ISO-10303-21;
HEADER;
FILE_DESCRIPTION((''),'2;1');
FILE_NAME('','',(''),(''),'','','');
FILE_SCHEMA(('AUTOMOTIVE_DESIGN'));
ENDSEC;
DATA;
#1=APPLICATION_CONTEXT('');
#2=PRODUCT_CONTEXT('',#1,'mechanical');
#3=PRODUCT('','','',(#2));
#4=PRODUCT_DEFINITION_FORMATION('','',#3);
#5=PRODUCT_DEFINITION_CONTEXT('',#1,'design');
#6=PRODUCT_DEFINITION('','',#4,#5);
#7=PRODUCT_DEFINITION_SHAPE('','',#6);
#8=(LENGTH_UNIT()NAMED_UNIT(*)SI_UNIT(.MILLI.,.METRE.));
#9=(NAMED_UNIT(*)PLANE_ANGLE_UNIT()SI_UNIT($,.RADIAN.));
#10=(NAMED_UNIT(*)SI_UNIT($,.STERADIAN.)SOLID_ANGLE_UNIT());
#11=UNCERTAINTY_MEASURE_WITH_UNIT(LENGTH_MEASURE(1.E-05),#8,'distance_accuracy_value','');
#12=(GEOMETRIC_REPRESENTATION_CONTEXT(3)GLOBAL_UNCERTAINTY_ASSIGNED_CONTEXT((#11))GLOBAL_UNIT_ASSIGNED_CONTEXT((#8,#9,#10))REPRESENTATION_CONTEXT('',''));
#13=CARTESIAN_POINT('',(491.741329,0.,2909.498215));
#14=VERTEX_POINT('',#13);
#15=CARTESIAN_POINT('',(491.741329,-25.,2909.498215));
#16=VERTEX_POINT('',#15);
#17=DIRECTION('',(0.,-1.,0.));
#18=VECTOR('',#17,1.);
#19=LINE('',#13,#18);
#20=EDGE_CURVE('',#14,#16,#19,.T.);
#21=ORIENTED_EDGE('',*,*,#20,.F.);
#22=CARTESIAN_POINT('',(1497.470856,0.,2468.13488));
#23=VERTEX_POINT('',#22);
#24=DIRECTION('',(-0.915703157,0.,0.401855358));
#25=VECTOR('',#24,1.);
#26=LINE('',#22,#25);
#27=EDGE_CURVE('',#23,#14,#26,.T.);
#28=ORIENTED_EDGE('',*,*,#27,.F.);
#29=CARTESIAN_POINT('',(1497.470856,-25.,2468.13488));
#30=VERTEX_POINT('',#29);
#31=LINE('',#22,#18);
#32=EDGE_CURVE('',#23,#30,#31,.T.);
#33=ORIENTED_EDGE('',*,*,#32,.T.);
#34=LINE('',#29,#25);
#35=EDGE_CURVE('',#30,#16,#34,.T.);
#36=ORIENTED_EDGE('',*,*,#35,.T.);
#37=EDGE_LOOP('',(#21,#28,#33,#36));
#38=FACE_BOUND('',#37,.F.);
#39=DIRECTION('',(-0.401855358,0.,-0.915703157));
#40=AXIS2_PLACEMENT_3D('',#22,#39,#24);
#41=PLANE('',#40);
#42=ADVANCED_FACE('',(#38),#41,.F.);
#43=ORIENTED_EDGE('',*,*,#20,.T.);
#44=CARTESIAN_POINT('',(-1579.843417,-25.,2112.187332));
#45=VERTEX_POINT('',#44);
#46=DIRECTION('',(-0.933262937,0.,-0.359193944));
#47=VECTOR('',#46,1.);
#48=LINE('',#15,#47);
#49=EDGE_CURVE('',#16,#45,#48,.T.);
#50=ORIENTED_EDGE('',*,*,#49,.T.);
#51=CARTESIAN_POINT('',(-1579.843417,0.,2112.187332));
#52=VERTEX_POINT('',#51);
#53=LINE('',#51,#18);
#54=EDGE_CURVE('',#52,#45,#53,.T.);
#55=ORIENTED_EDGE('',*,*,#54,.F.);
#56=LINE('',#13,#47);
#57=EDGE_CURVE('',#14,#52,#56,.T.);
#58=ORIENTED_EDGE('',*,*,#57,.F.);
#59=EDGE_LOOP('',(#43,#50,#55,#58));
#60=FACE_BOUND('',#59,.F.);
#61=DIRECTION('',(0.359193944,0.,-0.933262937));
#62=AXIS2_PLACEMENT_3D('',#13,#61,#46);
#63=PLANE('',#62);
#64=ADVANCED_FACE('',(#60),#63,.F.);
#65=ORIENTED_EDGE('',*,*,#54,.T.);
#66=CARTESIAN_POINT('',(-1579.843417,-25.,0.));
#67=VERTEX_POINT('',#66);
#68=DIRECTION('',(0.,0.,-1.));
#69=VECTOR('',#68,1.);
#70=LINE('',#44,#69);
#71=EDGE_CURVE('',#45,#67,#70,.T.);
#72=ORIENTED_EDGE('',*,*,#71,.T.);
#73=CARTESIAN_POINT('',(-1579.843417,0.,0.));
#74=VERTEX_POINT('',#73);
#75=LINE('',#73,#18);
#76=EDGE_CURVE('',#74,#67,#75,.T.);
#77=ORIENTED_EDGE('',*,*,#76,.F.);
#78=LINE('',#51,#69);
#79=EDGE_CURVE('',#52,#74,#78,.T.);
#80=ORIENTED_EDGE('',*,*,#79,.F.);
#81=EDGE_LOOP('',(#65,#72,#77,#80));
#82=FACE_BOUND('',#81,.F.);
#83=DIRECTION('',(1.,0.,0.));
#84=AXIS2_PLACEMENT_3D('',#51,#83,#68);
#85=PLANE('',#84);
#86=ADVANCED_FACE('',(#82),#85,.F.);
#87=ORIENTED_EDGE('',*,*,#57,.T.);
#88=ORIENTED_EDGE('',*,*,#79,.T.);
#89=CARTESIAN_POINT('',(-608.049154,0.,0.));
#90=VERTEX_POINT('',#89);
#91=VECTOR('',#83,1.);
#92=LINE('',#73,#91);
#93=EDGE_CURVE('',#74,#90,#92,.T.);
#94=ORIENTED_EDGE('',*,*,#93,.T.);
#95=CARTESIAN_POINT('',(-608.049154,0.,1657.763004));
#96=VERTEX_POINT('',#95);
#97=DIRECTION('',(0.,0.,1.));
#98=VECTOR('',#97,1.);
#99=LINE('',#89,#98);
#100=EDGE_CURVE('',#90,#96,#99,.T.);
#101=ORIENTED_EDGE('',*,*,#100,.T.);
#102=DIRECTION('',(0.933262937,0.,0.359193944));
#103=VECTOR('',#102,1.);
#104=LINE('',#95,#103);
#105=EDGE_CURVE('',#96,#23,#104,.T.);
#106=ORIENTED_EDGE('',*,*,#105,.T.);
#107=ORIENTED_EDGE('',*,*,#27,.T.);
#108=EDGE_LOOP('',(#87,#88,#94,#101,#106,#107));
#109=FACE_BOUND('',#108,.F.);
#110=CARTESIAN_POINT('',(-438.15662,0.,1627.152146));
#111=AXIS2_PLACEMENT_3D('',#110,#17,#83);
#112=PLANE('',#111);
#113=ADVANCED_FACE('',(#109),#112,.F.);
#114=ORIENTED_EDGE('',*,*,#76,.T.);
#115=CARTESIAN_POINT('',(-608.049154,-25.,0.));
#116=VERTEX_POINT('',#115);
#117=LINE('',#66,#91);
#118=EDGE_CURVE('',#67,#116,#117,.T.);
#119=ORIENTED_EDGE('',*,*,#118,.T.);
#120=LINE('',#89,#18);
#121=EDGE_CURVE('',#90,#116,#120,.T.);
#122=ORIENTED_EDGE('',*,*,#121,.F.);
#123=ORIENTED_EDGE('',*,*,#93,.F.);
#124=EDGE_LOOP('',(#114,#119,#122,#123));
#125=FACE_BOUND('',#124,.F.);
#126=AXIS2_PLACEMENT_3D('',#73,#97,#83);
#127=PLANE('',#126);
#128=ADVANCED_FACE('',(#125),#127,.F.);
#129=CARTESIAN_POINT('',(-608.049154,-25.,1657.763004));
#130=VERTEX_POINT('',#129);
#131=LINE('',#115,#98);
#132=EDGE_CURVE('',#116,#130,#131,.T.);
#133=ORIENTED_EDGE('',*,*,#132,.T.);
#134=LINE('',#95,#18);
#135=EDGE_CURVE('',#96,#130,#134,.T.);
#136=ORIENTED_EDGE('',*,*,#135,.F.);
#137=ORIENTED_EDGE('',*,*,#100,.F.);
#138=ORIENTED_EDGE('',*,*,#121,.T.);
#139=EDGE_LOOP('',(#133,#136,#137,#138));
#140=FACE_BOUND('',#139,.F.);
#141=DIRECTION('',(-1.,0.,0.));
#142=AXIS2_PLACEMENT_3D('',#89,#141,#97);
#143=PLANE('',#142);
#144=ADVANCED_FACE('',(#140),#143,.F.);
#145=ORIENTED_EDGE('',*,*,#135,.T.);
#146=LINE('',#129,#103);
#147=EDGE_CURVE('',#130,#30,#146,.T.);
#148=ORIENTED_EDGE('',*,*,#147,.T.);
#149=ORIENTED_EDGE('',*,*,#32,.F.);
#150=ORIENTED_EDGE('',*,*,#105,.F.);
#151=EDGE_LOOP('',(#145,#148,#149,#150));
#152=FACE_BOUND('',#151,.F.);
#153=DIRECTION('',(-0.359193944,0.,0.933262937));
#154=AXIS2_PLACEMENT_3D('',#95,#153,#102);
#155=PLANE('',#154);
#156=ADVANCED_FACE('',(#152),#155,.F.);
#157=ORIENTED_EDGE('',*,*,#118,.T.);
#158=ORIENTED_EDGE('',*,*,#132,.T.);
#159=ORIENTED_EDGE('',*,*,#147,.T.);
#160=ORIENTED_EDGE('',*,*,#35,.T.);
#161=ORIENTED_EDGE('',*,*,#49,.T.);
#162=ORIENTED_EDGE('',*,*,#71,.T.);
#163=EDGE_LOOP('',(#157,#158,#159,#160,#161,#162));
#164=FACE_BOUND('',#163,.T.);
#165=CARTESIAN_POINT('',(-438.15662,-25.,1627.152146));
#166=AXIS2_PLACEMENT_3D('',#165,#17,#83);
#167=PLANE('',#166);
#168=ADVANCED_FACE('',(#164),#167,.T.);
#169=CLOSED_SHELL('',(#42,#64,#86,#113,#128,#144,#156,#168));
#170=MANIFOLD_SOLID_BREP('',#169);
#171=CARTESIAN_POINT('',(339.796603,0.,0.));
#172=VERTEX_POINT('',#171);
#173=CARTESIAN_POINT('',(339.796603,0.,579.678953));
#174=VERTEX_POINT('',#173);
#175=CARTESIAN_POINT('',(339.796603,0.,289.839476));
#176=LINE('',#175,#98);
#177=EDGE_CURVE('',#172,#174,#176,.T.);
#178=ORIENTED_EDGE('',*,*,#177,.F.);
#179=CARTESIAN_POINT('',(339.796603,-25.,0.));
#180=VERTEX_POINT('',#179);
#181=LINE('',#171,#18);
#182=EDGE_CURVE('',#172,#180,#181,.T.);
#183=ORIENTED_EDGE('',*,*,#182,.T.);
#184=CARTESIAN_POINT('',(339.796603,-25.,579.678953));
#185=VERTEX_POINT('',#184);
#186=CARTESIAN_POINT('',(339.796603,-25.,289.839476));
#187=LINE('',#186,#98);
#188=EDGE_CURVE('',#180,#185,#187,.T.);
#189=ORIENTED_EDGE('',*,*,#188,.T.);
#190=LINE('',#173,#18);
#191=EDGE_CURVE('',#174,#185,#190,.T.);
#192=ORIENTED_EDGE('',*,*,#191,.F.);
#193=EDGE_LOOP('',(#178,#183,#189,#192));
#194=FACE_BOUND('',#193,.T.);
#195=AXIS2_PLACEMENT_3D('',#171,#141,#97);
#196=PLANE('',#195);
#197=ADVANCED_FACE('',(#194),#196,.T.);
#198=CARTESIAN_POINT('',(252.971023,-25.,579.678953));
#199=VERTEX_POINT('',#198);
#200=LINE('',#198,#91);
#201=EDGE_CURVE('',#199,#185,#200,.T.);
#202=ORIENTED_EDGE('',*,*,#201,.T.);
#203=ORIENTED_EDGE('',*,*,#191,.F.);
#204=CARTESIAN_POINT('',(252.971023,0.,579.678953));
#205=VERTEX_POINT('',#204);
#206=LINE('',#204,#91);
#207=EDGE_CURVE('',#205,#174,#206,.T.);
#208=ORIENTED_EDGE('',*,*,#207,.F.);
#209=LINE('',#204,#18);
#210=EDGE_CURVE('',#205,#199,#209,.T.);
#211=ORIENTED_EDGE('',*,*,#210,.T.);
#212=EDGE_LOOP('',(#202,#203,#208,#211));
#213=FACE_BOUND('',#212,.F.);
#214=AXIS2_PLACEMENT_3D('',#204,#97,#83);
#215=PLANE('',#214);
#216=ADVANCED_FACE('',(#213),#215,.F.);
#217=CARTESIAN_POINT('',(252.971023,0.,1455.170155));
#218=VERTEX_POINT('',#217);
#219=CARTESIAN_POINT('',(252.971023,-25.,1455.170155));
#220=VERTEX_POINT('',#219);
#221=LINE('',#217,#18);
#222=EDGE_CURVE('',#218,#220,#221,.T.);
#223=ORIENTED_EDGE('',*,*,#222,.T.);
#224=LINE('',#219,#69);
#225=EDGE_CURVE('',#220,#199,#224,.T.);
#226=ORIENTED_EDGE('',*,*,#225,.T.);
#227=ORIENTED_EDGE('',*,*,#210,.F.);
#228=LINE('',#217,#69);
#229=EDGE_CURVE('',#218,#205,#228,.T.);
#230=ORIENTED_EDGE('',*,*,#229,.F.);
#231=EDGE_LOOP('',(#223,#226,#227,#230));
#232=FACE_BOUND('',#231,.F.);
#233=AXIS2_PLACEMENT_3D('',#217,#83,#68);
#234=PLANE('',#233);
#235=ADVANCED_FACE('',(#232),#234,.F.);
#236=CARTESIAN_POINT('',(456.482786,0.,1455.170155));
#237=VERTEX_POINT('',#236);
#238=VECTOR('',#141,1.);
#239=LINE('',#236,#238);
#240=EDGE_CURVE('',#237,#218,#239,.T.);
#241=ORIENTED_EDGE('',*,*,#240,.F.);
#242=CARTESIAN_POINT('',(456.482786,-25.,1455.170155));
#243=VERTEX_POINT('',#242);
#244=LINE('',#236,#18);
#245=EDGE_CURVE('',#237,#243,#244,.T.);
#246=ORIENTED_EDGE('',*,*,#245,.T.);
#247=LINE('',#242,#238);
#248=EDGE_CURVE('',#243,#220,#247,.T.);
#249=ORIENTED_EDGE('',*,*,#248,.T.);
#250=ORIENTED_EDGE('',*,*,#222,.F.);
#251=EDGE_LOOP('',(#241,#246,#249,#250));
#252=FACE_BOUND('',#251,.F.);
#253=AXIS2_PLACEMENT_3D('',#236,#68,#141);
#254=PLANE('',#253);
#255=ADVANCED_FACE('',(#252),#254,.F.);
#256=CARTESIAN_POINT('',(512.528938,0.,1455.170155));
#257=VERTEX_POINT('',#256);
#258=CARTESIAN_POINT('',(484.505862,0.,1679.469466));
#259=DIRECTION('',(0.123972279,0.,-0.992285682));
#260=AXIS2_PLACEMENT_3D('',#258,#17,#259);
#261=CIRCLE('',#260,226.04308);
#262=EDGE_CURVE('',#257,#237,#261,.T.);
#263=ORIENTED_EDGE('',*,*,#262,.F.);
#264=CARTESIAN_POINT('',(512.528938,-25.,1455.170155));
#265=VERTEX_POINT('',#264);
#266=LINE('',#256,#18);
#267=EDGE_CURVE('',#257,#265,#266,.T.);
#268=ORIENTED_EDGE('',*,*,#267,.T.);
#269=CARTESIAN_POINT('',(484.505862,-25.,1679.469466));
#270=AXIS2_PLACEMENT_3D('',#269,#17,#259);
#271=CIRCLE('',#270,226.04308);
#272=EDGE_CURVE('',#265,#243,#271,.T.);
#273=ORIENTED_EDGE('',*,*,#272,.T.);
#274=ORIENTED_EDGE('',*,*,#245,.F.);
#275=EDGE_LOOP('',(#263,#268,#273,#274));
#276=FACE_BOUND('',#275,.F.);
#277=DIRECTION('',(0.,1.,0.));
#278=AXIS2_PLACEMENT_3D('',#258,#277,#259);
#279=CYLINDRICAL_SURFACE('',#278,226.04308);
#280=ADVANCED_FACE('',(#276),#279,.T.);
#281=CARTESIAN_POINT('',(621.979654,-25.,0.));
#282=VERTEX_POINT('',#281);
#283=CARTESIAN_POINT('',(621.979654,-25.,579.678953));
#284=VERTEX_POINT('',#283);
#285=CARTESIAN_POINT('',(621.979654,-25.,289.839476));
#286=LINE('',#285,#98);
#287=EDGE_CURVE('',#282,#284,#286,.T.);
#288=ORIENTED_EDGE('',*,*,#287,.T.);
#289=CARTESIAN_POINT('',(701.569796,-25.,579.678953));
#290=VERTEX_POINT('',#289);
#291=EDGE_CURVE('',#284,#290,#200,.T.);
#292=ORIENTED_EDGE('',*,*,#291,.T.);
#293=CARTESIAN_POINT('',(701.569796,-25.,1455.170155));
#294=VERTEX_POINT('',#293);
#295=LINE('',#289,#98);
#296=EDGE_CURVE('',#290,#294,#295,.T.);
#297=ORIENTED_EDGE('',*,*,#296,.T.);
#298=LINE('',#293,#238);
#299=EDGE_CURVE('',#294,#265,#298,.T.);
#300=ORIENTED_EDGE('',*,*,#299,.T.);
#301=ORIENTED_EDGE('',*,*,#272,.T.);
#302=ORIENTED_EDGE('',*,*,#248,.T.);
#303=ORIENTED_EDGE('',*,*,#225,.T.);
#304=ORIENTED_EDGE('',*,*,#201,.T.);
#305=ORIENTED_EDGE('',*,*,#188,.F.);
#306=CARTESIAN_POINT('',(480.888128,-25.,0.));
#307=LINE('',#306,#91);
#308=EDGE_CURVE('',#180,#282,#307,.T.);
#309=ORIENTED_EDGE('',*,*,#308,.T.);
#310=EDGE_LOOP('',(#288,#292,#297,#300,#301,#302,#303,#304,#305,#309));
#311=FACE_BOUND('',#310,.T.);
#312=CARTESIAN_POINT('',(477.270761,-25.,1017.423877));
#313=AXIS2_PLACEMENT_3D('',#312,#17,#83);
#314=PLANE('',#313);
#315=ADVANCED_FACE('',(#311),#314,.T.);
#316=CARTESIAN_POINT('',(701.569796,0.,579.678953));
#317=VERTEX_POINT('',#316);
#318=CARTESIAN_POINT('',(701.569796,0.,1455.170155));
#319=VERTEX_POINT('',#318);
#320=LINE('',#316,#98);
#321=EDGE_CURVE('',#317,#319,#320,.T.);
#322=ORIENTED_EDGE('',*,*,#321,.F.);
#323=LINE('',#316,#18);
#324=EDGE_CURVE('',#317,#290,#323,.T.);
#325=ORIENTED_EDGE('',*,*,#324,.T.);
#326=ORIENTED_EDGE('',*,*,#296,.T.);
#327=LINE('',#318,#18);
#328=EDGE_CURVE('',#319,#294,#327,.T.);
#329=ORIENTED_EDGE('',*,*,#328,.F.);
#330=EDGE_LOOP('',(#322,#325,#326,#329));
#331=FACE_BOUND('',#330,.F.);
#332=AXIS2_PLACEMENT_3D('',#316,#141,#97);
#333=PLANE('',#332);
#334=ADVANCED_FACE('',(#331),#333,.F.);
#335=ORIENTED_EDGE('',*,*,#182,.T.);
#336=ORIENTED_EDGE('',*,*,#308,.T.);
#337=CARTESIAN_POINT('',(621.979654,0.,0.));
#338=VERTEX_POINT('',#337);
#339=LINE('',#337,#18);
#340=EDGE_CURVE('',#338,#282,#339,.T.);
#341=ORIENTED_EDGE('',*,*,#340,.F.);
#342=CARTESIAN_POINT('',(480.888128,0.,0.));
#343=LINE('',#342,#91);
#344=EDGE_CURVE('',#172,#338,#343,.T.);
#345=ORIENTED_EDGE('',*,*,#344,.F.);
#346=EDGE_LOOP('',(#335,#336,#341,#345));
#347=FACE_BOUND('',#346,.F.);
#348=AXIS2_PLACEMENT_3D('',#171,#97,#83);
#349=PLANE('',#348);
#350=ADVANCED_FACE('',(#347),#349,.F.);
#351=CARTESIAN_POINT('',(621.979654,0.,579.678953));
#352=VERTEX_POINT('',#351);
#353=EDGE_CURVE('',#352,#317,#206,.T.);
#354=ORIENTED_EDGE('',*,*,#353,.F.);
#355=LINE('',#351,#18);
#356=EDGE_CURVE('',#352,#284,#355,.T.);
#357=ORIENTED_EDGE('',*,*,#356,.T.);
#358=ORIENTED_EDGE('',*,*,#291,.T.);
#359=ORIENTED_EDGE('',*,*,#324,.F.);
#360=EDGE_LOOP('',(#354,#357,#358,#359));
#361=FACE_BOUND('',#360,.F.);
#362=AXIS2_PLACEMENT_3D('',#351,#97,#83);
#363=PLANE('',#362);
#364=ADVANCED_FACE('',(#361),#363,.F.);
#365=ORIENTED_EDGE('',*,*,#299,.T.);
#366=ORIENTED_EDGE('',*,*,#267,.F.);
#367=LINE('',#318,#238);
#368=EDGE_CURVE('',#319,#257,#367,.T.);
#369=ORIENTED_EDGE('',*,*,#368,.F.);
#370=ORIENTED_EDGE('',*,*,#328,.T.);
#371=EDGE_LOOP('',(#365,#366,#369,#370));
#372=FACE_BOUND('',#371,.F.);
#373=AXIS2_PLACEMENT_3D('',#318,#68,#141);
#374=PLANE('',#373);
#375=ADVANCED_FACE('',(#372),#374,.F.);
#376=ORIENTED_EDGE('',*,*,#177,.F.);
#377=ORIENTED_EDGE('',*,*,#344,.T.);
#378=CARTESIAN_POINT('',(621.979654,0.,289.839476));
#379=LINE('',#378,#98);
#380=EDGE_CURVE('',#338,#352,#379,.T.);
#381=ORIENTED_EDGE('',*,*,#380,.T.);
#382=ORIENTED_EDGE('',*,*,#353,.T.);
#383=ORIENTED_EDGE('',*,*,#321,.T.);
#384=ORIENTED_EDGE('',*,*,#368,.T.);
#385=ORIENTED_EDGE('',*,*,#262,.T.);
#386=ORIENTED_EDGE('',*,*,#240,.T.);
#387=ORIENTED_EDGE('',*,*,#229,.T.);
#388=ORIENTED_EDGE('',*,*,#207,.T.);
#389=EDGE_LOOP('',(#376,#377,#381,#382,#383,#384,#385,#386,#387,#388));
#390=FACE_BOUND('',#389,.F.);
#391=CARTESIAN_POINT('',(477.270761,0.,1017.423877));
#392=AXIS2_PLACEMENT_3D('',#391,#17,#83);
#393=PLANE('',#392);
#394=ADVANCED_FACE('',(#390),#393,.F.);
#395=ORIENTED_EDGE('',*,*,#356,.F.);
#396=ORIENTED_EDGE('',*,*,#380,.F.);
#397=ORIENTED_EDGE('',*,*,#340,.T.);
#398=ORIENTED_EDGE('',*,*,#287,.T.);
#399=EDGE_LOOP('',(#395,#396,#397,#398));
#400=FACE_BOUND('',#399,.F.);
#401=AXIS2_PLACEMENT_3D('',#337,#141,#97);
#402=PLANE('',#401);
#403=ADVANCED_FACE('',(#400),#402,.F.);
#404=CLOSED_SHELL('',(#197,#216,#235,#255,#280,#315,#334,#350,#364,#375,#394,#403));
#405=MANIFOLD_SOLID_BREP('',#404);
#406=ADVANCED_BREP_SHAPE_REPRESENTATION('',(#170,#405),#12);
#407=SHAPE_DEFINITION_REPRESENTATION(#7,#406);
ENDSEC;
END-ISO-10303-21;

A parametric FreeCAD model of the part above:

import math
import FreeCAD as App
import Part
import Sketcher

V = App.Vector
Q = App.Units.Quantity


def add_polygon(sketch, points):
    """Adds a closed chain of lines whose ends are joined by coincident constraints."""
    first, n = sketch.GeometryCount, len(points)
    for a, b in zip(points, points[1:] + points[:1]):
        sketch.addGeometry(Part.LineSegment(App.Vector(*a, 0), App.Vector(*b, 0)), False)
    for i in range(n):
        sketch.addConstraint(Sketcher.Constraint("Coincident", first + i, 2, first + (i + 1) % n, 1))

doc = App.newDocument("Part")
params = doc.addObject("Spreadsheet::Sheet", "Params")
for row, (alias, value) in enumerate([
    ("pad1_length", "25 mm"),
    ("pad2_length", "25 mm"),
], start=1):
    params.set(f"A{row}", alias)
    params.set(f"B{row}", "=" + value)
    params.setAlias(f"B{row}", alias)

body = doc.addObject("PartDesign::Body", "Body")

sketch1 = body.newObject("Sketcher::SketchObject", "Sketch")
sketch1.AttachmentSupport = (doc.getObject("XZ_Plane"), [""])
sketch1.MapMode = "FlatFace"
add_polygon(sketch1, [(-1580, 0), (-608, 0), (-608, 1658), (1497, 2468), (492, 2909), (-1580, 2112)])
sketch1.addConstraint([
    Sketcher.Constraint("Horizontal", 0),
    Sketcher.Constraint("Vertical", 1),
    Sketcher.Constraint("Vertical", 5),
    Sketcher.Constraint("PointOnObject", 0, 2, -1),
    Sketcher.Constraint("Parallel", 2, 4),
    Sketcher.Constraint("Distance", 2, Q("2256.08446 mm")),
    Sketcher.Constraint("DistanceX", 0, 1, 0, 2, Q("971.794263 mm")),
    Sketcher.Constraint("DistanceY", 1, 1, 1, 2, Q("1657.763004 mm")),
    Sketcher.Constraint("DistanceY", 5, 2, 5, 1, Q("2112.187332 mm")),
    Sketcher.Constraint("DistanceY", -1, 1, 2, 2, Q("2468.13488 mm")),
    Sketcher.Constraint("DistanceX", -1, 1, 3, 2, Q("491.741329 mm")),
    Sketcher.Constraint("DistanceY", 1, 2, 3, 2, Q("1251.73521 mm")),
])
pad1 = body.newObject("PartDesign::Pad", "Pad")
pad1.Profile = sketch1
pad1.setExpression("Length", "Params.pad1_length")
body2 = doc.addObject("PartDesign::Body", "Body001")

sketch2 = body2.newObject("Sketcher::SketchObject", "Sketch001")
sketch2.AttachmentSupport = (doc.getObject("XZ_Plane001"), [""])
sketch2.MapMode = "FlatFace"
sketch2.addGeometry([
    Part.LineSegment(V(253, 580, 0), V(340, 580, 0)),
    Part.LineSegment(V(340, 580, 0), V(340, 0, 0)),
    Part.LineSegment(V(340, 0, 0), V(622, 0, 0)),
    Part.LineSegment(V(622, 0, 0), V(622, 580, 0)),
    Part.LineSegment(V(622, 580, 0), V(702, 580, 0)),
    Part.LineSegment(V(702, 580, 0), V(702, 1455, 0)),
    Part.LineSegment(V(702, 1455, 0), V(513, 1455, 0)),
    Part.ArcOfCircle(Part.Circle(V(485, 1679, 0), V(0, 0, 1), 226), math.radians(-83), math.radians(263)),
    Part.LineSegment(V(456, 1455, 0), V(253, 1455, 0)),
    Part.LineSegment(V(253, 1455, 0), V(253, 580, 0)),
], False)
sketch2.addConstraint([
    Sketcher.Constraint("Coincident", 0, 2, 1, 1),
    Sketcher.Constraint("Coincident", 1, 2, 2, 1),
    Sketcher.Constraint("Coincident", 2, 2, 3, 1),
    Sketcher.Constraint("Coincident", 3, 2, 4, 1),
    Sketcher.Constraint("Coincident", 4, 2, 5, 1),
    Sketcher.Constraint("Coincident", 5, 2, 6, 1),
    Sketcher.Constraint("Coincident", 6, 2, 7, 1),
    Sketcher.Constraint("Coincident", 7, 2, 8, 1),
    Sketcher.Constraint("Coincident", 8, 2, 9, 1),
    Sketcher.Constraint("Coincident", 9, 2, 0, 1),
    Sketcher.Constraint("Horizontal", 0),
    Sketcher.Constraint("Vertical", 1),
    Sketcher.Constraint("Horizontal", 2),
    Sketcher.Constraint("Vertical", 3),
    Sketcher.Constraint("Horizontal", 4),
    Sketcher.Constraint("Vertical", 5),
    Sketcher.Constraint("Horizontal", 6),
    Sketcher.Constraint("Horizontal", 8),
    Sketcher.Constraint("Vertical", 9),
    Sketcher.Constraint("PointOnObject", 1, 2, -1),
    Sketcher.Constraint("Horizontal", 0, 2, 3, 2),
    Sketcher.Constraint("Horizontal", 6, 2, 7, 2),
    Sketcher.Constraint("Radius", 7, Q("226.04308 mm")),
    Sketcher.Constraint("DistanceY", 5, 1, 5, 2, Q("875.491202 mm")),
    Sketcher.Constraint("DistanceX", 0, 1, 0, 2, Q("86.825579 mm")),
    Sketcher.Constraint("DistanceX", 2, 1, 2, 2, Q("282.183051 mm")),
    Sketcher.Constraint("DistanceX", 4, 1, 4, 2, Q("79.590142 mm")),
    Sketcher.Constraint("DistanceX", 6, 2, 6, 1, Q("189.040858 mm")),
    Sketcher.Constraint("DistanceX", 8, 2, 8, 1, Q("203.511763 mm")),
    Sketcher.Constraint("DistanceY", 1, 2, 1, 1, Q("579.678953 mm")),
    Sketcher.Constraint("DistanceX", -1, 1, 7, 3, Q("484.505862 mm")),
])
pad2 = body2.newObject("PartDesign::Pad", "Pad001")
pad2.Profile = sketch2
pad2.setExpression("Length", "Params.pad2_length")

doc.recompute()
